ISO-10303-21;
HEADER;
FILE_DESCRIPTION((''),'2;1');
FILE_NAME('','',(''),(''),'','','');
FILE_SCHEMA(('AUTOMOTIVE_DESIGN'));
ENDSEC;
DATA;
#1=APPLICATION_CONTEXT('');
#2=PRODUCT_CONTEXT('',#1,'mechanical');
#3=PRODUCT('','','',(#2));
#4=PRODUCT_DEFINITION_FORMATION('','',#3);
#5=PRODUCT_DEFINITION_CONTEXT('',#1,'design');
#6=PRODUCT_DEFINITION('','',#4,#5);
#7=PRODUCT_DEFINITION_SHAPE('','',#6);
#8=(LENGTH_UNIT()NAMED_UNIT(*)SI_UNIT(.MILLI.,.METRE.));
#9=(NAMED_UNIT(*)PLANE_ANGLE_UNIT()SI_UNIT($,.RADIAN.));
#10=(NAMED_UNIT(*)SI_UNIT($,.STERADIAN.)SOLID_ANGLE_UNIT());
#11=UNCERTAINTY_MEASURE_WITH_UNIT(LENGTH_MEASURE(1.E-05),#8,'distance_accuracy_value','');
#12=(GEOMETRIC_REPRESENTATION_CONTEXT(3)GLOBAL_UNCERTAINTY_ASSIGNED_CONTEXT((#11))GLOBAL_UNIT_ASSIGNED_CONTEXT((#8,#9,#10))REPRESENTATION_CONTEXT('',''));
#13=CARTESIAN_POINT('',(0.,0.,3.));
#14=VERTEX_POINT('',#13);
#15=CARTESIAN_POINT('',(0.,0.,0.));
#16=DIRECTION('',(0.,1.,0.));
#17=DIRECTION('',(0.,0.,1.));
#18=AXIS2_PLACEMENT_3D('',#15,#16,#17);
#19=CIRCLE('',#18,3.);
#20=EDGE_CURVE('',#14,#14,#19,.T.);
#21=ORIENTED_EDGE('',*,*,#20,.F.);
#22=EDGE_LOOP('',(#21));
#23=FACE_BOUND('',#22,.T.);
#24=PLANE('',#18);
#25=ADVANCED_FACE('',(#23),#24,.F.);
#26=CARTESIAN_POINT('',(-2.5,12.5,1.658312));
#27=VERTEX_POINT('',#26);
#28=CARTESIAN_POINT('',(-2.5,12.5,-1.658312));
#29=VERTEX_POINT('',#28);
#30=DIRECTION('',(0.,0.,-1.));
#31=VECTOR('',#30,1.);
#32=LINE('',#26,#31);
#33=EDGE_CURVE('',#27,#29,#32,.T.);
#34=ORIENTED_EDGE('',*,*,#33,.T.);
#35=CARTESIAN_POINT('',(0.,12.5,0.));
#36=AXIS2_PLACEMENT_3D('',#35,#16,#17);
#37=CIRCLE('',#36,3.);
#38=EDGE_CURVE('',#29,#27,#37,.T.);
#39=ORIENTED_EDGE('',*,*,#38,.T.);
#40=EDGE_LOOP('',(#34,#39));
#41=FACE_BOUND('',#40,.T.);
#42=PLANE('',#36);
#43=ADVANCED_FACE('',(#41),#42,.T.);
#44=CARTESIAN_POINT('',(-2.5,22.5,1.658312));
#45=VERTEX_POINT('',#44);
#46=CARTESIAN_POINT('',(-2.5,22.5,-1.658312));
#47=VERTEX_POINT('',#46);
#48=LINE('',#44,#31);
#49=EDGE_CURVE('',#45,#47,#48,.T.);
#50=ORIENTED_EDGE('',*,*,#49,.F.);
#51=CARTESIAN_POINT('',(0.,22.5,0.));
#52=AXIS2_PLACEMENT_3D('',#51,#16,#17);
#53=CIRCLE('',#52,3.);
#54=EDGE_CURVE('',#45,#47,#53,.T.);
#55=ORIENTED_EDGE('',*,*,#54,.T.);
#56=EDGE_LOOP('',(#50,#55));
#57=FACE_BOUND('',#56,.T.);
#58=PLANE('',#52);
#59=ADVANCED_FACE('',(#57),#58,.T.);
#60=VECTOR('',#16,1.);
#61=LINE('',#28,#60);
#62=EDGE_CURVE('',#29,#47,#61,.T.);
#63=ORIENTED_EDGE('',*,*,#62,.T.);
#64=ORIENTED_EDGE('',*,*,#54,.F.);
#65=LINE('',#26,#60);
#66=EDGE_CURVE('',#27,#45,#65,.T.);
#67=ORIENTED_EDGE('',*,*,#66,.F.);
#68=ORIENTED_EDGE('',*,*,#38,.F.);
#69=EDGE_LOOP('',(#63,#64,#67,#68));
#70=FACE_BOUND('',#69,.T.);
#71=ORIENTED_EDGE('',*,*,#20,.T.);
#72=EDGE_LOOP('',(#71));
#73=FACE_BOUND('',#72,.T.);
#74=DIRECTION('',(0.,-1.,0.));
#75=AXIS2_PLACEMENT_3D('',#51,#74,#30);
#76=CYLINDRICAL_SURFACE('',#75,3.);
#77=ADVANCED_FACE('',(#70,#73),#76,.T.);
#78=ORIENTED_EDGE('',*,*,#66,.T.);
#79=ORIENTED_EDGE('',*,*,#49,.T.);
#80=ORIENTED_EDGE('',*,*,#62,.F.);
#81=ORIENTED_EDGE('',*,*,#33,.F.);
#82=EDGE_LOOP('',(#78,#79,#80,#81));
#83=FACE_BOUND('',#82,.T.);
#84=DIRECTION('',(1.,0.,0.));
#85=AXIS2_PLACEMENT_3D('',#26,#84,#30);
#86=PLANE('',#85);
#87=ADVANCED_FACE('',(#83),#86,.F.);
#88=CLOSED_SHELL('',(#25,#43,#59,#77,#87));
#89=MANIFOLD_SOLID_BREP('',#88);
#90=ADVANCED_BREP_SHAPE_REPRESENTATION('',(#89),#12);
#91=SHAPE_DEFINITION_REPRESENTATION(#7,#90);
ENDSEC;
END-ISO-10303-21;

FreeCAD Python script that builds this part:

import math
import FreeCAD as App
import Part
import Sketcher

V = App.Vector

doc = App.newDocument("Part")
body = doc.addObject("PartDesign::Body", "Body")

# Sketch on XZ plane
sketch1 = body.newObject("Sketcher::SketchObject", "Sketch")
sketch1.AttachmentSupport = (doc.getObject("XZ_Plane"), [""])
sketch1.MapMode = "FlatFace"
sketch1.addGeometry(Part.Circle(V(0, 0, 0), V(0, 0, 1), 3), False)
sketch1.addConstraint([
    Sketcher.Constraint("Coincident", 0, 3, -1, 1),
    Sketcher.Constraint("Diameter", 0, 6.0),
])
pad1 = body.newObject("PartDesign::Pad", "Pad")
pad1.Profile = sketch1
pad1.Length = 22.5
pad1.Reversed = True

# Sketch on XZ plane
sketch2 = body.newObject("Sketcher::SketchObject", "Sketch001")
sketch2.AttachmentSupport = (doc.getObject("XZ_Plane"), [""])
sketch2.MapMode = "FlatFace"
sketch2.AttachmentOffset = App.Placement(V(0, 0, -12.5), App.Rotation())
sketch2.addGeometry([
    Part.LineSegment(V(-2.5, 1.7, 0), V(-2.5, -1.7, 0)),
    Part.ArcOfCircle(Part.Circle(V(0, 0, 0), V(0, 0, 1), 3), math.radians(146), math.radians(214)),
], False)
sketch2.addConstraint([
    Sketcher.Constraint("Coincident", 0, 1, 1, 1),
    Sketcher.Constraint("Coincident", 1, 2, 0, 2),
    Sketcher.Constraint("Vertical", 0),
    Sketcher.Constraint("Coincident", 1, 3, -1, 1),
    Sketcher.Constraint("Radius", 1, 3.0),
    Sketcher.Constraint("DistanceX", 0, 1, -1, 1, 2.5),
])
pocket1 = body.newObject("PartDesign::Pocket", "Pocket")
pocket1.Profile = sketch2
pocket1.Length = 10

doc.recompute()
